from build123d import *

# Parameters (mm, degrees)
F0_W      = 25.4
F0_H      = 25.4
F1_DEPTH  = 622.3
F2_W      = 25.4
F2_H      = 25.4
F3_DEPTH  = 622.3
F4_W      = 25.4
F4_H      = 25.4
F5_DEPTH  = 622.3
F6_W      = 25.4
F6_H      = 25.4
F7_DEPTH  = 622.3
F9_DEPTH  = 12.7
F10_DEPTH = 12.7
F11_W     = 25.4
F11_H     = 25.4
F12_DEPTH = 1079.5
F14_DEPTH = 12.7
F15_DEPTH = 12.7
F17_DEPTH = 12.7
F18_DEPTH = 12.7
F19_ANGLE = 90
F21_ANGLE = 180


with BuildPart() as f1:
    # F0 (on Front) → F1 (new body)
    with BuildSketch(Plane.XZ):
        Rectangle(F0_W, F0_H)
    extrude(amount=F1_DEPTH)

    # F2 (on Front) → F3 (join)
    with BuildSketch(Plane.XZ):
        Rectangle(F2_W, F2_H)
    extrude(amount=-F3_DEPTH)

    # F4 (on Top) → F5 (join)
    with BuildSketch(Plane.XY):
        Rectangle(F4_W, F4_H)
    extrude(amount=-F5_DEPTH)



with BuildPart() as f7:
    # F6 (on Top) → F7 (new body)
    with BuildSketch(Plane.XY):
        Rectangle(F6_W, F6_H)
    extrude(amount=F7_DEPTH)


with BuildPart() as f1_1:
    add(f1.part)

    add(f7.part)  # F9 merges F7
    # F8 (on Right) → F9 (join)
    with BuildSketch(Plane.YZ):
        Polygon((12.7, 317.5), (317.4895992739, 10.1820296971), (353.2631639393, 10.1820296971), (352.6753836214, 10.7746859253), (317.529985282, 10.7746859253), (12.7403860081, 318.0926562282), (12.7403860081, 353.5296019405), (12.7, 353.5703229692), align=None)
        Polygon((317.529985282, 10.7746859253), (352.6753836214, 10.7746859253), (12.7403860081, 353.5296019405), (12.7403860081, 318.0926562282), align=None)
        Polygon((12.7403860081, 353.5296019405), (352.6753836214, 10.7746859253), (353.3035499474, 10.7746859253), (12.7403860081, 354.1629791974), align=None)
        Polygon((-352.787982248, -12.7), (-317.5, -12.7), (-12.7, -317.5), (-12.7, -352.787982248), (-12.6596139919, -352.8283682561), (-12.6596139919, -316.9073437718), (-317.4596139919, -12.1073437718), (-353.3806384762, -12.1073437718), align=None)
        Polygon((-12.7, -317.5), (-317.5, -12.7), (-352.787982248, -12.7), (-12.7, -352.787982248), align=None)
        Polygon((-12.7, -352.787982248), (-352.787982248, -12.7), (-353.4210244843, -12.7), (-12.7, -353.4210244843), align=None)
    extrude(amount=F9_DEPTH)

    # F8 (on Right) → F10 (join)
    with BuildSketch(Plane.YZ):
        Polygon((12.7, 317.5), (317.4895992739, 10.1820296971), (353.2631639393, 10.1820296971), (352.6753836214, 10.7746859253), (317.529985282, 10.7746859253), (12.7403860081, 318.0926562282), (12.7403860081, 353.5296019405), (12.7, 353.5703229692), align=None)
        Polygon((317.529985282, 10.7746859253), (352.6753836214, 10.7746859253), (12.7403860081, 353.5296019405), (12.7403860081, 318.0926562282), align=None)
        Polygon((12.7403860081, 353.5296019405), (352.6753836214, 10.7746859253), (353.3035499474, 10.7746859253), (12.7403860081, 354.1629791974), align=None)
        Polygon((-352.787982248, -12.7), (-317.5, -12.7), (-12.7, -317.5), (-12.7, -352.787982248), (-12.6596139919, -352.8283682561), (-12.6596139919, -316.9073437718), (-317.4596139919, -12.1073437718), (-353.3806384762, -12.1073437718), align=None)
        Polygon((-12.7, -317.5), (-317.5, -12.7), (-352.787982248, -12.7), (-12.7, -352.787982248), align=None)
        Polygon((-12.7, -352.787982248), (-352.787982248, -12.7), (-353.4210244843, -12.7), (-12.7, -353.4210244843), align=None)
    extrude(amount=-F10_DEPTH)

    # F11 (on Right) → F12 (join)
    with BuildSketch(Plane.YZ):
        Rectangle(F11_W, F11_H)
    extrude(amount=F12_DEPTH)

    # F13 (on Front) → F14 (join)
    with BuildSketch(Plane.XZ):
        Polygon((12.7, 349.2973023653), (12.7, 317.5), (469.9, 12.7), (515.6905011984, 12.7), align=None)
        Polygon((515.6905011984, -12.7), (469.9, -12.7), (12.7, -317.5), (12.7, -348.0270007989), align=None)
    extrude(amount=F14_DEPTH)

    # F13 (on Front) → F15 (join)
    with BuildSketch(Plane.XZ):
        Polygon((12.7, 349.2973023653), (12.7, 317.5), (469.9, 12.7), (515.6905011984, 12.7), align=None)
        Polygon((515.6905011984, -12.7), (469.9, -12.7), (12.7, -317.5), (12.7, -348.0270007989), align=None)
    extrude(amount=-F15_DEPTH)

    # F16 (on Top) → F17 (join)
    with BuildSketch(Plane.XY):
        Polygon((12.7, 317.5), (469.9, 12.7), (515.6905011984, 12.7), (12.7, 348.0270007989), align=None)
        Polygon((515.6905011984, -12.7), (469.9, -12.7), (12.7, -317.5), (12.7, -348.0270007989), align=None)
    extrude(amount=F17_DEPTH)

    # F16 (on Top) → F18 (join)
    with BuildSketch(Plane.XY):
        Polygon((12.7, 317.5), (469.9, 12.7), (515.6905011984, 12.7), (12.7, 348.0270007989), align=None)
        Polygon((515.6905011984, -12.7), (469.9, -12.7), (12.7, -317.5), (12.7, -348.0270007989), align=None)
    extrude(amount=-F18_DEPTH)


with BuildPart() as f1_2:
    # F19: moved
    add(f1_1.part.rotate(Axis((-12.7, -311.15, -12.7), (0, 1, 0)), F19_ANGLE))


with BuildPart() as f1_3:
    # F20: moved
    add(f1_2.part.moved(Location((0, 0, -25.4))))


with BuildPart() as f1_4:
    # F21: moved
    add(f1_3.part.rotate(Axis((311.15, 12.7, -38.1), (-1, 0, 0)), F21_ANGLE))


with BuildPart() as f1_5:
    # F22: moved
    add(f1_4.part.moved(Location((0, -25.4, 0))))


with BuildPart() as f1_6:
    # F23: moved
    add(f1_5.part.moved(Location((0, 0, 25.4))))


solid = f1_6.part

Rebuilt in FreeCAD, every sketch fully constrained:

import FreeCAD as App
import Part
import Sketcher

V = App.Vector
Q = App.Units.Quantity

doc = App.newDocument("Part")
params = doc.addObject("Spreadsheet::Sheet", "Params")
for row, (alias, value) in enumerate([
    ("sketch1_width", "1 in"),
    ("pad1_length", "24.5 in"),
    ("sketch2_width", "1 in"),
    ("pad2_length", "24.5 in"),
    ("sketch3_width", "1 in"),
    ("pad3_length", "24.5 in"),
    ("sketch4_width", "1 in"),
    ("pad4_length", "24.5 in"),
    ("pad5_length", "0.5 in"),
    ("pad6_length", "0.5 in"),
    ("sketch7_width", "1 in"),
    ("pad7_length", "42.5 in"),
    ("pad8_length", "0.5 in"),
    ("pad9_length", "0.5 in"),
    ("pad10_length", "0.5 in"),
    ("pad11_length", "0.5 in"),
], start=1):
    params.set(f"A{row}", alias)
    params.set(f"B{row}", "=" + value)
    params.setAlias(f"B{row}", alias)

body = doc.addObject("PartDesign::Body", "Body")

# Sketch on XZ plane
sketch1 = doc.addObject("Sketcher::SketchObject", "Sketch")
body.addObject(sketch1)
sketch1.AttachmentSupport = (doc.XZ_Plane, [""])
sketch1.MapMode = "FlatFace"
sketch1.addGeometry([
    Part.LineSegment(V(-12.7, 12.7, 0), V(-12.7, -12.7, 0)),
    Part.LineSegment(V(-12.7, -12.7, 0), V(12.7, -12.7, 0)),
    Part.LineSegment(V(12.7, -12.7, 0), V(12.7, 12.7, 0)),
    Part.LineSegment(V(12.7, 12.7, 0), V(-12.7, 12.7, 0)),
], False)
sketch1.addConstraint([
    Sketcher.Constraint("Coincident", 0, 2, 1, 1),
    Sketcher.Constraint("Coincident", 1, 2, 2, 1),
    Sketcher.Constraint("Coincident", 2, 2, 3, 1),
    Sketcher.Constraint("Coincident", 3, 2, 0, 1),
    Sketcher.Constraint("Vertical", 0),
    Sketcher.Constraint("Horizontal", 1),
    Sketcher.Constraint("Vertical", 2),
    Sketcher.Constraint("Horizontal", 3),
    Sketcher.Constraint("Symmetric", 0, 2, 2, 2, -1, 1),
    Sketcher.Constraint("Equal", 3, 0),
    Sketcher.Constraint("DistanceX", 1, 1, 1, 2, Q("1 in")),
])
sketch1.setExpression("Constraints[10]", "Params.sketch1_width")
pad1 = doc.addObject("PartDesign::Pad", "Pad")
body.addObject(pad1)
pad1.Profile = sketch1
pad1.setExpression("Length", "Params.pad1_length")

# Sketch on XZ plane
sketch2 = doc.addObject("Sketcher::SketchObject", "Sketch001")
body.addObject(sketch2)
sketch2.AttachmentSupport = (doc.XZ_Plane, [""])
sketch2.MapMode = "FlatFace"
sketch2.addGeometry([
    Part.LineSegment(V(-12.7, 12.7, 0), V(-12.7, -12.7, 0)),
    Part.LineSegment(V(-12.7, -12.7, 0), V(12.7, -12.7, 0)),
    Part.LineSegment(V(12.7, -12.7, 0), V(12.7, 12.7, 0)),
    Part.LineSegment(V(12.7, 12.7, 0), V(-12.7, 12.7, 0)),
], False)
sketch2.addConstraint([
    Sketcher.Constraint("Coincident", 0, 2, 1, 1),
    Sketcher.Constraint("Coincident", 1, 2, 2, 1),
    Sketcher.Constraint("Coincident", 2, 2, 3, 1),
    Sketcher.Constraint("Coincident", 3, 2, 0, 1),
    Sketcher.Constraint("Vertical", 0),
    Sketcher.Constraint("Horizontal", 1),
    Sketcher.Constraint("Vertical", 2),
    Sketcher.Constraint("Horizontal", 3),
    Sketcher.Constraint("Symmetric", 0, 2, 2, 2, -1, 1),
    Sketcher.Constraint("Equal", 3, 0),
    Sketcher.Constraint("DistanceX", 1, 1, 1, 2, Q("1 in")),
])
sketch2.setExpression("Constraints[10]", "Params.sketch2_width")
pad2 = doc.addObject("PartDesign::Pad", "Pad001")
body.addObject(pad2)
pad2.Profile = sketch2
pad2.setExpression("Length", "Params.pad2_length")
pad2.Reversed = True

# Sketch on XY plane
sketch3 = doc.addObject("Sketcher::SketchObject", "Sketch002")
body.addObject(sketch3)
sketch3.AttachmentSupport = (doc.XY_Plane, [""])
sketch3.MapMode = "FlatFace"
sketch3.addGeometry([
    Part.LineSegment(V(-12.7, 12.7, 0), V(-12.7, -12.7, 0)),
    Part.LineSegment(V(-12.7, -12.7, 0), V(12.7, -12.7, 0)),
    Part.LineSegment(V(12.7, -12.7, 0), V(12.7, 12.7, 0)),
    Part.LineSegment(V(12.7, 12.7, 0), V(-12.7, 12.7, 0)),
], False)
sketch3.addConstraint([
    Sketcher.Constraint("Coincident", 0, 2, 1, 1),
    Sketcher.Constraint("Coincident", 1, 2, 2, 1),
    Sketcher.Constraint("Coincident", 2, 2, 3, 1),
    Sketcher.Constraint("Coincident", 3, 2, 0, 1),
    Sketcher.Constraint("Vertical", 0),
    Sketcher.Constraint("Horizontal", 1),
    Sketcher.Constraint("Vertical", 2),
    Sketcher.Constraint("Horizontal", 3),
    Sketcher.Constraint("Symmetric", 0, 2, 2, 2, -1, 1),
    Sketcher.Constraint("Equal", 3, 0),
    Sketcher.Constraint("DistanceX", 1, 1, 1, 2, Q("1 in")),
])
sketch3.setExpression("Constraints[10]", "Params.sketch3_width")
pad3 = doc.addObject("PartDesign::Pad", "Pad002")
body.addObject(pad3)
pad3.Profile = sketch3
pad3.setExpression("Length", "Params.pad3_length")
pad3.Reversed = True
body2 = doc.addObject("PartDesign::Body", "Body001")

# Sketch on XY plane
sketch4 = doc.addObject("Sketcher::SketchObject", "Sketch003")
body2.addObject(sketch4)
sketch4.AttachmentSupport = (doc.getObject("XY_Plane001"), [""])
sketch4.MapMode = "FlatFace"
sketch4.addGeometry([
    Part.LineSegment(V(-12.7, 12.7, 0), V(-12.7, -12.7, 0)),
    Part.LineSegment(V(-12.7, -12.7, 0), V(12.7, -12.7, 0)),
    Part.LineSegment(V(12.7, -12.7, 0), V(12.7, 12.7, 0)),
    Part.LineSegment(V(12.7, 12.7, 0), V(-12.7, 12.7, 0)),
], False)
sketch4.addConstraint([
    Sketcher.Constraint("Coincident", 0, 2, 1, 1),
    Sketcher.Constraint("Coincident", 1, 2, 2, 1),
    Sketcher.Constraint("Coincident", 2, 2, 3, 1),
    Sketcher.Constraint("Coincident", 3, 2, 0, 1),
    Sketcher.Constraint("Vertical", 0),
    Sketcher.Constraint("Horizontal", 1),
    Sketcher.Constraint("Vertical", 2),
    Sketcher.Constraint("Horizontal", 3),
    Sketcher.Constraint("Symmetric", 0, 2, 2, 2, -1, 1),
    Sketcher.Constraint("Equal", 3, 0),
    Sketcher.Constraint("DistanceX", 1, 1, 1, 2, Q("1 in")),
])
sketch4.setExpression("Constraints[10]", "Params.sketch4_width")
pad4 = doc.addObject("PartDesign::Pad", "Pad003")
body2.addObject(pad4)
pad4.Profile = sketch4
pad4.setExpression("Length", "Params.pad4_length")
doc.recompute()

boolean = doc.addObject("PartDesign::Boolean", "Boolean")
body.addObject(boolean)
boolean.Type = "Fuse"
boolean.addObjects([body2])

# Sketch on YZ plane
sketch5 = doc.addObject("Sketcher::SketchObject", "Sketch004")
body.addObject(sketch5)
sketch5.AttachmentSupport = (doc.YZ_Plane, [""])
sketch5.MapMode = "FlatFace"
sketch5.addGeometry([
    Part.LineSegment(V(12.7, 317.5, 0), V(317.489599, 10.18203, 0)),  # 0
    Part.LineSegment(V(317.489599, 10.18203, 0), V(353.263164, 10.18203, 0)),  # 1
    Part.LineSegment(V(353.263164, 10.18203, 0), V(352.675384, 10.774686, 0)),  # 2
    Part.LineSegment(V(352.675384, 10.774686, 0), V(353.30355, 10.774686, 0)),  # 3
    Part.LineSegment(V(353.30355, 10.774686, 0), V(12.740386, 354.162979, 0)),  # 4
    Part.LineSegment(V(12.740386, 354.162979, 0), V(12.740386, 353.529602, 0)),  # 5
    Part.LineSegment(V(12.740386, 353.529602, 0), V(12.7, 353.570323, 0)),  # 6
    Part.LineSegment(V(12.7, 353.570323, 0), V(12.7, 317.5, 0)),  # 7
    Part.LineSegment(V(-12.659614, -352.828368, 0), V(-12.659614, -316.907344, 0)),  # 8
    Part.LineSegment(V(-12.659614, -316.907344, 0), V(-317.459614, -12.107344, 0)),  # 9
    Part.LineSegment(V(-317.459614, -12.107344, 0), V(-353.380638, -12.107344, 0)),  # 10
    Part.LineSegment(V(-353.380638, -12.107344, 0), V(-352.787982, -12.7, 0)),  # 11
    Part.LineSegment(V(-352.787982, -12.7, 0), V(-353.421024, -12.7, 0)),  # 12
    Part.LineSegment(V(-353.421024, -12.7, 0), V(-12.7, -353.421024, 0)),  # 13
    Part.LineSegment(V(-12.7, -353.421024, 0), V(-12.7, -352.787982, 0)),  # 14
    Part.LineSegment(V(-12.7, -352.787982, 0), V(-12.659614, -352.828368, 0)),  # 15
], False)
sketch5.addConstraint([
    Sketcher.Constraint("Coincident", 0, 2, 1, 1),
    Sketcher.Constraint("Coincident", 1, 2, 2, 1),
    Sketcher.Constraint("Coincident", 2, 2, 3, 1),
    Sketcher.Constraint("Coincident", 3, 2, 4, 1),
    Sketcher.Constraint("Coincident", 4, 2, 5, 1),
    Sketcher.Constraint("Coincident", 5, 2, 6, 1),
    Sketcher.Constraint("Coincident", 6, 2, 7, 1),
    Sketcher.Constraint("Coincident", 7, 2, 0, 1),
    Sketcher.Constraint("Coincident", 8, 2, 9, 1),
    Sketcher.Constraint("Coincident", 9, 2, 10, 1),
    Sketcher.Constraint("Coincident", 10, 2, 11, 1),
    Sketcher.Constraint("Coincident", 11, 2, 12, 1),
    Sketcher.Constraint("Coincident", 12, 2, 13, 1),
    Sketcher.Constraint("Coincident", 13, 2, 14, 1),
    Sketcher.Constraint("Coincident", 14, 2, 15, 1),
    Sketcher.Constraint("Coincident", 15, 2, 8, 1),
    Sketcher.Constraint("Horizontal", 1),
    Sketcher.Constraint("Horizontal", 3),
    Sketcher.Constraint("Vertical", 5),
    Sketcher.Constraint("Vertical", 7),
    Sketcher.Constraint("Vertical", 8),
    Sketcher.Constraint("Horizontal", 10),
    Sketcher.Constraint("Horizontal", 12),
    Sketcher.Constraint("Vertical", 14),
    Sketcher.Constraint("Parallel", 0, 2),
    Sketcher.Constraint("Parallel", 0, 4),
    Sketcher.Constraint("Parallel", 4, 6),
    Sketcher.Constraint("Parallel", 9, 11),
    Sketcher.Constraint("Parallel", 9, 13),
    Sketcher.Constraint("Parallel", 13, 15),
    Sketcher.Constraint("Equal", 10, 8),
    Sketcher.Constraint("Equal", 12, 14),
    Sketcher.Constraint("DistanceX", 9, 2, 8, 2, Q("12 in")),
    Sketcher.Constraint("DistanceX", 9, 2, 5, 2, Q("13 in")),
    Sketcher.Constraint("DistanceY", 11, 2, 7, 2, Q("13 in")),
    Sketcher.Constraint("DistanceX", -1, 1, 6, 2, Q("0.5 in")),
    Sketcher.Constraint("DistanceY", -1, 1, 7, 2, Q("12.5 in")),
    Sketcher.Constraint("DistanceX", 13, 2, -1, 1, Q("0.5 in")),
    Sketcher.Constraint("Distance", 2, 0.834702),
    Sketcher.Constraint("DistanceX", -1, 1, 0, 2, 317.489599),
    Sketcher.Constraint("DistanceY", -1, 1, 5, 2, 353.529602),
    Sketcher.Constraint("Distance", 4, 483.630839),
    Sketcher.Constraint("Distance", 6, 0.057352),
    Sketcher.Constraint("DistanceX", 1, 1, 1, 2, 35.773565),
    Sketcher.Constraint("DistanceX", 3, 1, 3, 2, 0.628166),
    Sketcher.Constraint("DistanceX", 10, 2, 10, 1, 35.921024),
    Sketcher.Constraint("DistanceX", 12, 2, 12, 1, 0.633042),
    Sketcher.Constraint("DistanceY", 15, 2, -1, 1, 352.828368),
])
pad5 = doc.addObject("PartDesign::Pad", "Pad004")
body.addObject(pad5)
pad5.Profile = sketch5
pad5.setExpression("Length", "Params.pad5_length")

# Sketch on YZ plane
sketch6 = doc.addObject("Sketcher::SketchObject", "Sketch005")
body.addObject(sketch6)
sketch6.AttachmentSupport = (doc.YZ_Plane, [""])
sketch6.MapMode = "FlatFace"
sketch6.addGeometry([
    Part.LineSegment(V(12.7, 317.5, 0), V(317.489599, 10.18203, 0)),  # 0
    Part.LineSegment(V(317.489599, 10.18203, 0), V(353.263164, 10.18203, 0)),  # 1
    Part.LineSegment(V(353.263164, 10.18203, 0), V(352.675384, 10.774686, 0)),  # 2
    Part.LineSegment(V(352.675384, 10.774686, 0), V(353.30355, 10.774686, 0)),  # 3
    Part.LineSegment(V(353.30355, 10.774686, 0), V(12.740386, 354.162979, 0)),  # 4
    Part.LineSegment(V(12.740386, 354.162979, 0), V(12.740386, 353.529602, 0)),  # 5
    Part.LineSegment(V(12.740386, 353.529602, 0), V(12.7, 353.570323, 0)),  # 6
    Part.LineSegment(V(12.7, 353.570323, 0), V(12.7, 317.5, 0)),  # 7
    Part.LineSegment(V(-12.659614, -352.828368, 0), V(-12.659614, -316.907344, 0)),  # 8
    Part.LineSegment(V(-12.659614, -316.907344, 0), V(-317.459614, -12.107344, 0)),  # 9
    Part.LineSegment(V(-317.459614, -12.107344, 0), V(-353.380638, -12.107344, 0)),  # 10
    Part.LineSegment(V(-353.380638, -12.107344, 0), V(-352.787982, -12.7, 0)),  # 11
    Part.LineSegment(V(-352.787982, -12.7, 0), V(-353.421024, -12.7, 0)),  # 12
    Part.LineSegment(V(-353.421024, -12.7, 0), V(-12.7, -353.421024, 0)),  # 13
    Part.LineSegment(V(-12.7, -353.421024, 0), V(-12.7, -352.787982, 0)),  # 14
    Part.LineSegment(V(-12.7, -352.787982, 0), V(-12.659614, -352.828368, 0)),  # 15
], False)
sketch6.addConstraint([
    Sketcher.Constraint("Coincident", 0, 2, 1, 1),
    Sketcher.Constraint("Coincident", 1, 2, 2, 1),
    Sketcher.Constraint("Coincident", 2, 2, 3, 1),
    Sketcher.Constraint("Coincident", 3, 2, 4, 1),
    Sketcher.Constraint("Coincident", 4, 2, 5, 1),
    Sketcher.Constraint("Coincident", 5, 2, 6, 1),
    Sketcher.Constraint("Coincident", 6, 2, 7, 1),
    Sketcher.Constraint("Coincident", 7, 2, 0, 1),
    Sketcher.Constraint("Coincident", 8, 2, 9, 1),
    Sketcher.Constraint("Coincident", 9, 2, 10, 1),
    Sketcher.Constraint("Coincident", 10, 2, 11, 1),
    Sketcher.Constraint("Coincident", 11, 2, 12, 1),
    Sketcher.Constraint("Coincident", 12, 2, 13, 1),
    Sketcher.Constraint("Coincident", 13, 2, 14, 1),
    Sketcher.Constraint("Coincident", 14, 2, 15, 1),
    Sketcher.Constraint("Coincident", 15, 2, 8, 1),
    Sketcher.Constraint("Horizontal", 1),
    Sketcher.Constraint("Horizontal", 3),
    Sketcher.Constraint("Vertical", 5),
    Sketcher.Constraint("Vertical", 7),
    Sketcher.Constraint("Vertical", 8),
    Sketcher.Constraint("Horizontal", 10),
    Sketcher.Constraint("Horizontal", 12),
    Sketcher.Constraint("Vertical", 14),
    Sketcher.Constraint("Parallel", 0, 2),
    Sketcher.Constraint("Parallel", 0, 4),
    Sketcher.Constraint("Parallel", 4, 6),
    Sketcher.Constraint("Parallel", 9, 11),
    Sketcher.Constraint("Parallel", 9, 13),
    Sketcher.Constraint("Parallel", 13, 15),
    Sketcher.Constraint("Equal", 10, 8),
    Sketcher.Constraint("Equal", 12, 14),
    Sketcher.Constraint("DistanceX", 9, 2, 8, 2, Q("12 in")),
    Sketcher.Constraint("DistanceX", 9, 2, 5, 2, Q("13 in")),
    Sketcher.Constraint("DistanceY", 11, 2, 7, 2, Q("13 in")),
    Sketcher.Constraint("DistanceX", -1, 1, 6, 2, Q("0.5 in")),
    Sketcher.Constraint("DistanceY", -1, 1, 7, 2, Q("12.5 in")),
    Sketcher.Constraint("DistanceX", 13, 2, -1, 1, Q("0.5 in")),
    Sketcher.Constraint("Distance", 2, 0.834702),
    Sketcher.Constraint("DistanceX", -1, 1, 0, 2, 317.489599),
    Sketcher.Constraint("DistanceY", -1, 1, 5, 2, 353.529602),
    Sketcher.Constraint("Distance", 4, 483.630839),
    Sketcher.Constraint("Distance", 6, 0.057352),
    Sketcher.Constraint("DistanceX", 1, 1, 1, 2, 35.773565),
    Sketcher.Constraint("DistanceX", 3, 1, 3, 2, 0.628166),
    Sketcher.Constraint("DistanceX", 10, 2, 10, 1, 35.921024),
    Sketcher.Constraint("DistanceX", 12, 2, 12, 1, 0.633042),
    Sketcher.Constraint("DistanceY", 15, 2, -1, 1, 352.828368),
])
pad6 = doc.addObject("PartDesign::Pad", "Pad005")
body.addObject(pad6)
pad6.Profile = sketch6
pad6.setExpression("Length", "Params.pad6_length")
pad6.Reversed = True

# Sketch on YZ plane
sketch7 = doc.addObject("Sketcher::SketchObject", "Sketch006")
body.addObject(sketch7)
sketch7.AttachmentSupport = (doc.YZ_Plane, [""])
sketch7.MapMode = "FlatFace"
sketch7.addGeometry([
    Part.LineSegment(V(-12.7, 12.7, 0), V(-12.7, -12.7, 0)),
    Part.LineSegment(V(-12.7, -12.7, 0), V(12.7, -12.7, 0)),
    Part.LineSegment(V(12.7, -12.7, 0), V(12.7, 12.7, 0)),
    Part.LineSegment(V(12.7, 12.7, 0), V(-12.7, 12.7, 0)),
], False)
sketch7.addConstraint([
    Sketcher.Constraint("Coincident", 0, 2, 1, 1),
    Sketcher.Constraint("Coincident", 1, 2, 2, 1),
    Sketcher.Constraint("Coincident", 2, 2, 3, 1),
    Sketcher.Constraint("Coincident", 3, 2, 0, 1),
    Sketcher.Constraint("Vertical", 0),
    Sketcher.Constraint("Horizontal", 1),
    Sketcher.Constraint("Vertical", 2),
    Sketcher.Constraint("Horizontal", 3),
    Sketcher.Constraint("Symmetric", 0, 2, 2, 2, -1, 1),
    Sketcher.Constraint("Equal", 3, 0),
    Sketcher.Constraint("DistanceX", 1, 1, 1, 2, Q("1 in")),
])
sketch7.setExpression("Constraints[10]", "Params.sketch7_width")
pad7 = doc.addObject("PartDesign::Pad", "Pad006")
body.addObject(pad7)
pad7.Profile = sketch7
pad7.setExpression("Length", "Params.pad7_length")

# Sketch on XZ plane
sketch8 = doc.addObject("Sketcher::SketchObject", "Sketch007")
body.addObject(sketch8)
sketch8.AttachmentSupport = (doc.XZ_Plane, [""])
sketch8.MapMode = "FlatFace"
sketch8.addGeometry([
    Part.LineSegment(V(12.7, 349.297302, 0), V(12.7, 317.5, 0)),  # 0
    Part.LineSegment(V(12.7, 317.5, 0), V(469.9, 12.7, 0)),  # 1
    Part.LineSegment(V(469.9, 12.7, 0), V(515.690501, 12.7, 0)),  # 2
    Part.LineSegment(V(515.690501, 12.7, 0), V(12.7, 349.297302, 0)),  # 3
    Part.LineSegment(V(515.690501, -12.7, 0), V(469.9, -12.7, 0)),  # 4
    Part.LineSegment(V(469.9, -12.7, 0), V(12.7, -317.5, 0)),  # 5
    Part.LineSegment(V(12.7, -317.5, 0), V(12.7, -348.027001, 0)),  # 6
    Part.LineSegment(V(12.7, -348.027001, 0), V(515.690501, -12.7, 0)),  # 7
], False)
sketch8.addConstraint([
    Sketcher.Constraint("Coincident", 0, 2, 1, 1),
    Sketcher.Constraint("Coincident", 1, 2, 2, 1),
    Sketcher.Constraint("Coincident", 2, 2, 3, 1),
    Sketcher.Constraint("Coincident", 3, 2, 0, 1),
    Sketcher.Constraint("Coincident", 4, 2, 5, 1),
    Sketcher.Constraint("Coincident", 5, 2, 6, 1),
    Sketcher.Constraint("Coincident", 6, 2, 7, 1),
    Sketcher.Constraint("Coincident", 7, 2, 4, 1),
    Sketcher.Constraint("Vertical", 0),
    Sketcher.Constraint("Horizontal", 2),
    Sketcher.Constraint("Horizontal", 4),
    Sketcher.Constraint("Vertical", 6),
    Sketcher.Constraint("Symmetric", 1, 2, 4, 2, -1),
    Sketcher.Constraint("Symmetric", 0, 2, 5, 2, -1),
    Sketcher.Constraint("Parallel", 5, 7),
    Sketcher.Constraint("Vertical", 2, 2, 7, 2),
    Sketcher.Constraint("DistanceX", 0, 2, 1, 2, Q("18 in")),
    Sketcher.Constraint("DistanceY", 1, 2, 0, 2, Q("12 in")),
    Sketcher.Constraint("DistanceY", 4, 2, 1, 2, Q("1 in")),
    Sketcher.Constraint("DistanceX", -1, 1, 0, 2, Q("0.5 in")),
    Sketcher.Constraint("DistanceX", 2, 1, 2, 2, 45.790501),
    Sketcher.Constraint("DistanceY", 0, 2, 0, 1, 31.797302),
])
pad8 = doc.addObject("PartDesign::Pad", "Pad007")
body.addObject(pad8)
pad8.Profile = sketch8
pad8.setExpression("Length", "Params.pad8_length")

# Sketch on XZ plane
sketch9 = doc.addObject("Sketcher::SketchObject", "Sketch008")
body.addObject(sketch9)
sketch9.AttachmentSupport = (doc.XZ_Plane, [""])
sketch9.MapMode = "FlatFace"
sketch9.addGeometry([
    Part.LineSegment(V(12.7, 349.297302, 0), V(12.7, 317.5, 0)),  # 0
    Part.LineSegment(V(12.7, 317.5, 0), V(469.9, 12.7, 0)),  # 1
    Part.LineSegment(V(469.9, 12.7, 0), V(515.690501, 12.7, 0)),  # 2
    Part.LineSegment(V(515.690501, 12.7, 0), V(12.7, 349.297302, 0)),  # 3
    Part.LineSegment(V(515.690501, -12.7, 0), V(469.9, -12.7, 0)),  # 4
    Part.LineSegment(V(469.9, -12.7, 0), V(12.7, -317.5, 0)),  # 5
    Part.LineSegment(V(12.7, -317.5, 0), V(12.7, -348.027001, 0)),  # 6
    Part.LineSegment(V(12.7, -348.027001, 0), V(515.690501, -12.7, 0)),  # 7
], False)
sketch9.addConstraint([
    Sketcher.Constraint("Coincident", 0, 2, 1, 1),
    Sketcher.Constraint("Coincident", 1, 2, 2, 1),
    Sketcher.Constraint("Coincident", 2, 2, 3, 1),
    Sketcher.Constraint("Coincident", 3, 2, 0, 1),
    Sketcher.Constraint("Coincident", 4, 2, 5, 1),
    Sketcher.Constraint("Coincident", 5, 2, 6, 1),
    Sketcher.Constraint("Coincident", 6, 2, 7, 1),
    Sketcher.Constraint("Coincident", 7, 2, 4, 1),
    Sketcher.Constraint("Vertical", 0),
    Sketcher.Constraint("Horizontal", 2),
    Sketcher.Constraint("Horizontal", 4),
    Sketcher.Constraint("Vertical", 6),
    Sketcher.Constraint("Symmetric", 1, 2, 4, 2, -1),
    Sketcher.Constraint("Symmetric", 0, 2, 5, 2, -1),
    Sketcher.Constraint("Parallel", 5, 7),
    Sketcher.Constraint("Vertical", 2, 2, 7, 2),
    Sketcher.Constraint("DistanceX", 0, 2, 1, 2, Q("18 in")),
    Sketcher.Constraint("DistanceY", 1, 2, 0, 2, Q("12 in")),
    Sketcher.Constraint("DistanceY", 4, 2, 1, 2, Q("1 in")),
    Sketcher.Constraint("DistanceX", -1, 1, 0, 2, Q("0.5 in")),
    Sketcher.Constraint("DistanceX", 2, 1, 2, 2, 45.790501),
    Sketcher.Constraint("DistanceY", 0, 2, 0, 1, 31.797302),
])
pad9 = doc.addObject("PartDesign::Pad", "Pad008")
body.addObject(pad9)
pad9.Profile = sketch9
pad9.setExpression("Length", "Params.pad9_length")
pad9.Reversed = True

# Sketch on XY plane
sketch10 = doc.addObject("Sketcher::SketchObject", "Sketch009")
body.addObject(sketch10)
sketch10.AttachmentSupport = (doc.XY_Plane, [""])
sketch10.MapMode = "FlatFace"
sketch10.addGeometry([
    Part.LineSegment(V(12.7, 317.5, 0), V(469.9, 12.7, 0)),  # 0
    Part.LineSegment(V(469.9, 12.7, 0), V(515.690501, 12.7, 0)),  # 1
    Part.LineSegment(V(515.690501, 12.7, 0), V(12.7, 348.027001, 0)),  # 2
    Part.LineSegment(V(12.7, 348.027001, 0), V(12.7, 317.5, 0)),  # 3
    Part.LineSegment(V(515.690501, -12.7, 0), V(469.9, -12.7, 0)),  # 4
    Part.LineSegment(V(469.9, -12.7, 0), V(12.7, -317.5, 0)),  # 5
    Part.LineSegment(V(12.7, -317.5, 0), V(12.7, -348.027001, 0)),  # 6
    Part.LineSegment(V(12.7, -348.027001, 0), V(515.690501, -12.7, 0)),  # 7
], False)
sketch10.addConstraint([
    Sketcher.Constraint("Coincident", 0, 2, 1, 1),
    Sketcher.Constraint("Coincident", 1, 2, 2, 1),
    Sketcher.Constraint("Coincident", 2, 2, 3, 1),
    Sketcher.Constraint("Coincident", 3, 2, 0, 1),
    Sketcher.Constraint("Coincident", 4, 2, 5, 1),
    Sketcher.Constraint("Coincident", 5, 2, 6, 1),
    Sketcher.Constraint("Coincident", 6, 2, 7, 1),
    Sketcher.Constraint("Coincident", 7, 2, 4, 1),
    Sketcher.Constraint("Horizontal", 1),
    Sketcher.Constraint("Vertical", 3),
    Sketcher.Constraint("Horizontal", 4),
    Sketcher.Constraint("Vertical", 6),
    Sketcher.Constraint("Symmetric", 0, 2, 4, 2, -1),
    Sketcher.Constraint("Symmetric", 3, 2, 5, 2, -1),
    Sketcher.Constraint("Parallel", 0, 2),
    Sketcher.Constraint("Parallel", 5, 7),
    Sketcher.Constraint("Vertical", 1, 2, 7, 2),
    Sketcher.Constraint("DistanceX", 2, 2, 0, 2, Q("18 in")),
    Sketcher.Constraint("DistanceY", 0, 2, 3, 2, Q("12 in")),
    Sketcher.Constraint("DistanceY", 4, 2, 0, 2, Q("1 in")),
    Sketcher.Constraint("DistanceX", -1, 1, 0, 2, Q("18.5 in")),
    Sketcher.Constraint("DistanceX", 1, 1, 1, 2, 45.790501),
])
pad10 = doc.addObject("PartDesign::Pad", "Pad009")
body.addObject(pad10)
pad10.Profile = sketch10
pad10.setExpression("Length", "Params.pad10_length")

# Sketch on XY plane
sketch11 = doc.addObject("Sketcher::SketchObject", "Sketch010")
body.addObject(sketch11)
sketch11.AttachmentSupport = (doc.XY_Plane, [""])
sketch11.MapMode = "FlatFace"
sketch11.addGeometry([
    Part.LineSegment(V(12.7, 317.5, 0), V(469.9, 12.7, 0)),  # 0
    Part.LineSegment(V(469.9, 12.7, 0), V(515.690501, 12.7, 0)),  # 1
    Part.LineSegment(V(515.690501, 12.7, 0), V(12.7, 348.027001, 0)),  # 2
    Part.LineSegment(V(12.7, 348.027001, 0), V(12.7, 317.5, 0)),  # 3
    Part.LineSegment(V(515.690501, -12.7, 0), V(469.9, -12.7, 0)),  # 4
    Part.LineSegment(V(469.9, -12.7, 0), V(12.7, -317.5, 0)),  # 5
    Part.LineSegment(V(12.7, -317.5, 0), V(12.7, -348.027001, 0)),  # 6
    Part.LineSegment(V(12.7, -348.027001, 0), V(515.690501, -12.7, 0)),  # 7
], False)
sketch11.addConstraint([
    Sketcher.Constraint("Coincident", 0, 2, 1, 1),
    Sketcher.Constraint("Coincident", 1, 2, 2, 1),
    Sketcher.Constraint("Coincident", 2, 2, 3, 1),
    Sketcher.Constraint("Coincident", 3, 2, 0, 1),
    Sketcher.Constraint("Coincident", 4, 2, 5, 1),
    Sketcher.Constraint("Coincident", 5, 2, 6, 1),
    Sketcher.Constraint("Coincident", 6, 2, 7, 1),
    Sketcher.Constraint("Coincident", 7, 2, 4, 1),
    Sketcher.Constraint("Horizontal", 1),
    Sketcher.Constraint("Vertical", 3),
    Sketcher.Constraint("Horizontal", 4),
    Sketcher.Constraint("Vertical", 6),
    Sketcher.Constraint("Symmetric", 0, 2, 4, 2, -1),
    Sketcher.Constraint("Symmetric", 3, 2, 5, 2, -1),
    Sketcher.Constraint("Parallel", 0, 2),
    Sketcher.Constraint("Parallel", 5, 7),
    Sketcher.Constraint("Vertical", 1, 2, 7, 2),
    Sketcher.Constraint("DistanceX", 2, 2, 0, 2, Q("18 in")),
    Sketcher.Constraint("DistanceY", 0, 2, 3, 2, Q("12 in")),
    Sketcher.Constraint("DistanceY", 4, 2, 0, 2, Q("1 in")),
    Sketcher.Constraint("DistanceX", -1, 1, 0, 2, Q("18.5 in")),
    Sketcher.Constraint("DistanceX", 1, 1, 1, 2, 45.790501),
])
pad11 = doc.addObject("PartDesign::Pad", "Pad010")
body.addObject(pad11)
pad11.Profile = sketch11
pad11.setExpression("Length", "Params.pad11_length")
pad11.Reversed = True
body3 = doc.addObject("PartDesign::Body", "Body002")
doc.recompute()

body.Placement = App.Placement(V(0, 0, -25.4), App.Rotation(V(0, 1, 0), 90))
boolean2 = doc.addObject("PartDesign::Boolean", "Boolean001")
body3.addObject(boolean2)
boolean2.Type = "Fuse"
boolean2.addObjects([body])
body4 = doc.addObject("PartDesign::Body", "Body003")
doc.recompute()

body3.Placement = App.Placement(V(0, 0, -25.4), App.Rotation(V(0, 0, 1), 0))
boolean3 = doc.addObject("PartDesign::Boolean", "Boolean002")
body4.addObject(boolean3)
boolean3.Type = "Fuse"
boolean3.addObjects([body3])
body5 = doc.addObject("PartDesign::Body", "Body004")
doc.recompute()

body4.Placement = App.Placement(V(0, 25.4, -76.2), App.Rotation(V(-1, 0, 0), 180))
boolean4 = doc.addObject("PartDesign::Boolean", "Boolean003")
body5.addObject(boolean4)
boolean4.Type = "Fuse"
boolean4.addObjects([body4])
body6 = doc.addObject("PartDesign::Body", "Body005")
doc.recompute()

body5.Placement = App.Placement(V(0, -25.4, 0), App.Rotation(V(0, 0, 1), 0))
boolean5 = doc.addObject("PartDesign::Boolean", "Boolean004")
body6.addObject(boolean5)
boolean5.Type = "Fuse"
boolean5.addObjects([body5])
body7 = doc.addObject("PartDesign::Body", "Body006")
doc.recompute()

body6.Placement = App.Placement(V(0, 0, 25.4), App.Rotation(V(0, 0, 1), 0))
boolean6 = doc.addObject("PartDesign::Boolean", "Boolean005")
body7.addObject(boolean6)
boolean6.Type = "Fuse"
boolean6.addObjects([body6])

doc.recompute()
